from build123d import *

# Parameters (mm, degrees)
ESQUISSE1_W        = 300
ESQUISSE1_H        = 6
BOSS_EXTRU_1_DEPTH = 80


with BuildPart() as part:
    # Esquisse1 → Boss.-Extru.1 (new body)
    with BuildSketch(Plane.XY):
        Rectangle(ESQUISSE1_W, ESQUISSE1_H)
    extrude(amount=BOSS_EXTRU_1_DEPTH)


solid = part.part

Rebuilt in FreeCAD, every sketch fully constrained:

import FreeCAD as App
import Part
import Sketcher
from FreeCAD import Vector

doc = App.newDocument("Part")
body = doc.addObject("PartDesign::Body", "Body")

# Sketch on XY plane
sketch1 = doc.addObject("Sketcher::SketchObject", "Sketch")
body.addObject(sketch1)
sketch1.AttachmentSupport = (doc.XY_Plane, [""])
sketch1.MapMode = "FlatFace"
sketch1.addGeometry([
    Part.LineSegment(Vector(-150, 3, 0), Vector(-150, -3, 0)),
    Part.LineSegment(Vector(-150, -3, 0), Vector(150, -3, 0)),
    Part.LineSegment(Vector(150, -3, 0), Vector(150, 3, 0)),
    Part.LineSegment(Vector(150, 3, 0), Vector(-150, 3, 0)),
], False)
sketch1.addConstraint([
    Sketcher.Constraint("Coincident", 0, 2, 1, 1),
    Sketcher.Constraint("Coincident", 1, 2, 2, 1),
    Sketcher.Constraint("Coincident", 2, 2, 3, 1),
    Sketcher.Constraint("Coincident", 3, 2, 0, 1),
    Sketcher.Constraint("Vertical", 0),
    Sketcher.Constraint("Horizontal", 1),
    Sketcher.Constraint("Vertical", 2),
    Sketcher.Constraint("Horizontal", 3),
    Sketcher.Constraint("Symmetric", 0, 2, 2, 2, -1, 1),
    Sketcher.Constraint("DistanceX", 1, 1, 1, 2, 300.0),
    Sketcher.Constraint("DistanceY", 0, 2, 0, 1, 6.0),
])
pad1 = doc.addObject("PartDesign::Pad", "Pad")
body.addObject(pad1)
pad1.Profile = sketch1
pad1.Length = 80

doc.recompute()
